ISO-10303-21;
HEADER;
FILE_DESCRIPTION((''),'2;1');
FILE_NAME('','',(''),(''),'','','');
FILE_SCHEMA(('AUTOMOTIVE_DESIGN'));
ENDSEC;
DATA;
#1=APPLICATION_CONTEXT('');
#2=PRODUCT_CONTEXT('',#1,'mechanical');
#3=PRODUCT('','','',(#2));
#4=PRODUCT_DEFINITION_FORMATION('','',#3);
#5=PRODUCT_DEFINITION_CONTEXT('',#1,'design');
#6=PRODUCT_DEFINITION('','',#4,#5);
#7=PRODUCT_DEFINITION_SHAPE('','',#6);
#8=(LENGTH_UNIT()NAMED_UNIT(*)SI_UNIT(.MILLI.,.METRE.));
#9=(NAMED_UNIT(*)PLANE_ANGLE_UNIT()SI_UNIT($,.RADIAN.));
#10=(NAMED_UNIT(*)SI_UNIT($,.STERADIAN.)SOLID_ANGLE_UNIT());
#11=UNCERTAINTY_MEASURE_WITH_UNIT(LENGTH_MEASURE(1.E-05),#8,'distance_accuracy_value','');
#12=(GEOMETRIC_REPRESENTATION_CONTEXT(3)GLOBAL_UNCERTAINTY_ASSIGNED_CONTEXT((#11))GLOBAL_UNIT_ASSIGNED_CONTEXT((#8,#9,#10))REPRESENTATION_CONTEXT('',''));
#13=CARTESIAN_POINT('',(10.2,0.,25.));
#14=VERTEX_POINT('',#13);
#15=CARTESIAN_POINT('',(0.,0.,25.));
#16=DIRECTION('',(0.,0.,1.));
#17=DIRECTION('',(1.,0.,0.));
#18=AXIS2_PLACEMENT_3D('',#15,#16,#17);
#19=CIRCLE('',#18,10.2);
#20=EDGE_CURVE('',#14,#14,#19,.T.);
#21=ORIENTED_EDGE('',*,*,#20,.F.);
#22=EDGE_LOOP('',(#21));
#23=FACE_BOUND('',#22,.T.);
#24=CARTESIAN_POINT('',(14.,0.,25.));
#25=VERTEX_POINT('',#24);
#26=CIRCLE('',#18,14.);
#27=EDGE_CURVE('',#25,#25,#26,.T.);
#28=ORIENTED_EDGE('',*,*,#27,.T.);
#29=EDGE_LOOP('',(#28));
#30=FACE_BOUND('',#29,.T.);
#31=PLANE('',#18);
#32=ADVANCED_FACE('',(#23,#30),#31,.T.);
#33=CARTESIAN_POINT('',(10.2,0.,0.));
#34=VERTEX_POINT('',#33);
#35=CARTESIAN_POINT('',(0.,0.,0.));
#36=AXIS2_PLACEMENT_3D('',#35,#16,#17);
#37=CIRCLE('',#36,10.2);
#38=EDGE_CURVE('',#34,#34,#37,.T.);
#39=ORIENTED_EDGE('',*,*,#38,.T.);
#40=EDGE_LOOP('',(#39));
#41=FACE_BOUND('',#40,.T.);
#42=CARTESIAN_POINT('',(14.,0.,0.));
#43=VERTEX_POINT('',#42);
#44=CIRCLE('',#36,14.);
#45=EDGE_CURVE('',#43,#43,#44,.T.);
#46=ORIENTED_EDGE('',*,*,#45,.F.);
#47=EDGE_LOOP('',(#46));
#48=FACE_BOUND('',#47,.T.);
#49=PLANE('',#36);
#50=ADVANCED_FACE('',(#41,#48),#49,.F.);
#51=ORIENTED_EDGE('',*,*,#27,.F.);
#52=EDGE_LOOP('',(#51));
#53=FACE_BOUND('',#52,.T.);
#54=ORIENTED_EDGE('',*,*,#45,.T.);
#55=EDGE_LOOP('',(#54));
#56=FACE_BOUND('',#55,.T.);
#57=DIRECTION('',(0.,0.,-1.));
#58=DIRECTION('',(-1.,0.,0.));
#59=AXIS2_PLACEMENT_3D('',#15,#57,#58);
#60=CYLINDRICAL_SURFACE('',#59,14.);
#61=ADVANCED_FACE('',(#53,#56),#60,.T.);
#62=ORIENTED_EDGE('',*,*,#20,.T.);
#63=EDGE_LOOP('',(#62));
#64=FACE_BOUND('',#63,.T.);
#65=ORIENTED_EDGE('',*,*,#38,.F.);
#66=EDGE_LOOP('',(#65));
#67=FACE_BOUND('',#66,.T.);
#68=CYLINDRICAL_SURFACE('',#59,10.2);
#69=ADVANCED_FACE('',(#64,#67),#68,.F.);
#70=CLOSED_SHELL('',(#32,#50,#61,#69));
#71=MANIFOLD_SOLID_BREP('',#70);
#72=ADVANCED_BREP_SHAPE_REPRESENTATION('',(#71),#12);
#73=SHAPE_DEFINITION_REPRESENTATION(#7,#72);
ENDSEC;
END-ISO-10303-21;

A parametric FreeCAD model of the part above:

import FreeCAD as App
import Part
import Sketcher
Q = App.Units.Quantity

doc = App.newDocument("Part")
body = doc.addObject("PartDesign::Body", "Body")

# Sketch on XY plane
sketch1 = doc.addObject("Sketcher::SketchObject", "Sketch")
body.addObject(sketch1)
sketch1.AttachmentSupport = (doc.XY_Plane, [""])
sketch1.MapMode = "FlatFace"
sketch1.addGeometry(Part.Circle(App.Vector(0, 0, 0), App.Vector(0, 0, 1), 14), False)
sketch1.addGeometry(Part.Circle(App.Vector(0, 0, 0), App.Vector(0, 0, 1), 10), False)
sketch1.addConstraint(Sketcher.Constraint("Coincident", 0, 3, -1, 1))
sketch1.addConstraint(Sketcher.Constraint("Coincident", 1, 3, -1, 1))
sketch1.addConstraint(Sketcher.Constraint("Diameter", 0, Q("28 mm")))
sketch1.addConstraint(Sketcher.Constraint("Diameter", 1, Q("20.4 mm")))
pad1 = doc.addObject("PartDesign::Pad", "Pad")
body.addObject(pad1)
pad1.Profile = sketch1
pad1.Length = 25

doc.recompute()
